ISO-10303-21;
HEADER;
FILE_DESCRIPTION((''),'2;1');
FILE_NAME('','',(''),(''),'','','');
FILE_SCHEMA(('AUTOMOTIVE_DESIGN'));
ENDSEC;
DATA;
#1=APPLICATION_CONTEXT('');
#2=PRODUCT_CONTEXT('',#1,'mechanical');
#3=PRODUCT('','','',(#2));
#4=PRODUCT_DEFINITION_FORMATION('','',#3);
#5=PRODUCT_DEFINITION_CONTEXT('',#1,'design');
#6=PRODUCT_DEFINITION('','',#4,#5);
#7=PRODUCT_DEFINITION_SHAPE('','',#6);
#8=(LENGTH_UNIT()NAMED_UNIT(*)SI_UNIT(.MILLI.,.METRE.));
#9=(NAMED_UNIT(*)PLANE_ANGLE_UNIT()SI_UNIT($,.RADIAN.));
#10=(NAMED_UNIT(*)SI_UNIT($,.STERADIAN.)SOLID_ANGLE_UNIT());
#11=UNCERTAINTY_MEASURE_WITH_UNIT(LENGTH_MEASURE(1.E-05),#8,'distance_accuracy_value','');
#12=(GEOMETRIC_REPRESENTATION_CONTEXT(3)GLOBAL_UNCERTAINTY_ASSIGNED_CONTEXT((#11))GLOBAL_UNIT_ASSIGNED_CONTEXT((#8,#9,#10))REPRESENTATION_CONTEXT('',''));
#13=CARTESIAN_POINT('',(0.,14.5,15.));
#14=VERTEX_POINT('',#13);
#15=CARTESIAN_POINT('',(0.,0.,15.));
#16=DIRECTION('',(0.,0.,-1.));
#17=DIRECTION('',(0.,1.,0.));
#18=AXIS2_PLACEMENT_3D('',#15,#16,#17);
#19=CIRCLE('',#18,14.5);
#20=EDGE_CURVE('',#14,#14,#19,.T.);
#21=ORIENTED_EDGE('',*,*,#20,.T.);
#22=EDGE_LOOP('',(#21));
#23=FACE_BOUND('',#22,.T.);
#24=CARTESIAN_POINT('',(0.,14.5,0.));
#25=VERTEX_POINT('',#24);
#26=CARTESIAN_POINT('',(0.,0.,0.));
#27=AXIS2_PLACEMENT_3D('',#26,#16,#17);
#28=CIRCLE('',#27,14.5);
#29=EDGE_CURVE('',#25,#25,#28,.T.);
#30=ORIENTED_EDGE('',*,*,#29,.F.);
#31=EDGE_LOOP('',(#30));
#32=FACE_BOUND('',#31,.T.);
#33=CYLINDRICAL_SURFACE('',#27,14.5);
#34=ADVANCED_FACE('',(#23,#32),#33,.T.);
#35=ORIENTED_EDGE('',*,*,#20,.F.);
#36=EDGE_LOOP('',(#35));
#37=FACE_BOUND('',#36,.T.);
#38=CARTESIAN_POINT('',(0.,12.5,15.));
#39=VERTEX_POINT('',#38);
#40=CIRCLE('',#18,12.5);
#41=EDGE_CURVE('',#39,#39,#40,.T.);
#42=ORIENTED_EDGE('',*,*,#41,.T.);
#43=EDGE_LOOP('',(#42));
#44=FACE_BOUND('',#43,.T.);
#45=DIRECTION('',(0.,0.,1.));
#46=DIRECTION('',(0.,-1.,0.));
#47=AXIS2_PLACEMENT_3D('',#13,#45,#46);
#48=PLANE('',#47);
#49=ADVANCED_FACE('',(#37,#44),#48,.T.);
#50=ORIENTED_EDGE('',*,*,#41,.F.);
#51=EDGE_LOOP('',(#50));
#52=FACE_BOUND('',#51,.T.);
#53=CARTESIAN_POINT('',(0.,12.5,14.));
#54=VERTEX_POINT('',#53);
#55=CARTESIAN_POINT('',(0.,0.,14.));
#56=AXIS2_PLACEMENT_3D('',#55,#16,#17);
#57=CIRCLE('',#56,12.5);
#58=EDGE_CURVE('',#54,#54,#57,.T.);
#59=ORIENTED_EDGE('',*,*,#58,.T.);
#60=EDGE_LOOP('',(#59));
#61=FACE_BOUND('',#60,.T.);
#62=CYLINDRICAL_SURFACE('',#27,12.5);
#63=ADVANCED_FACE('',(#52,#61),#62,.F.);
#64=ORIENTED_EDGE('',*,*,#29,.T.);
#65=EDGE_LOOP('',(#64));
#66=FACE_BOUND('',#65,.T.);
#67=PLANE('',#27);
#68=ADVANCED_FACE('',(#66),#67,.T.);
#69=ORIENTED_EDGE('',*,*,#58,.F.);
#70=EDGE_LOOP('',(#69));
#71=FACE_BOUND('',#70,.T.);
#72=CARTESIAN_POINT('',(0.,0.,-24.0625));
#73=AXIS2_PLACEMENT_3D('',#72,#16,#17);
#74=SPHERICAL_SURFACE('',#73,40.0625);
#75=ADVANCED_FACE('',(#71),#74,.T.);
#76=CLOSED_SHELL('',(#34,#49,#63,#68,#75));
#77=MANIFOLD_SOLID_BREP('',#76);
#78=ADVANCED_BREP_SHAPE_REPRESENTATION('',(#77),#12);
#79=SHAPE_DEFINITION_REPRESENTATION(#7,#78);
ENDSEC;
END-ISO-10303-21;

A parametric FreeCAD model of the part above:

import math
import FreeCAD as App
import Part
import Sketcher
from FreeCAD import Vector

doc = App.newDocument("Part")
params = doc.addObject("Spreadsheet::Sheet", "Params")
for row, (alias, value) in enumerate([
    ("sketch1_width", "2 mm"),
    ("sketch1_height", "15 mm"),
    ("sketch1_height2", "1 mm"),
    ("sketch1_height3", "16 mm"),
    ("sketch1_width2", "14.5 mm"),
    ("revolution_angle", "360 deg"),
], start=1):
    params.set(f"A{row}", alias)
    params.set(f"B{row}", "=" + value)
    params.setAlias(f"B{row}", alias)

body = doc.addObject("PartDesign::Body", "Body")

# Sketch on YZ plane
sketch1 = body.newObject("Sketcher::SketchObject", "Sketch")
sketch1.AttachmentSupport = (doc.getObject("YZ_Plane"), [""])
sketch1.MapMode = "FlatFace"
sketch1.addGeometry([
    Part.LineSegment(Vector(0, 0, 0), Vector(14.5, 0, 0)),  # 0
    Part.LineSegment(Vector(14.5, 0, 0), Vector(14.5, 15, 0)),  # 1
    Part.LineSegment(Vector(14.5, 15, 0), Vector(12.5, 15, 0)),  # 2
    Part.LineSegment(Vector(12.5, 15, 0), Vector(12.5, 14, 0)),  # 3
    Part.ArcOfCircle(Part.Circle(Vector(0, -24.1, 0), Vector(0, 0, 1), 40.1), math.radians(71.82), math.radians(90)),  # 4
    Part.LineSegment(Vector(0, 16, 0), Vector(0, 0, 0)),  # 5
], False)
sketch1.addConstraint([
    Sketcher.Constraint("Coincident", 0, 2, 1, 1),
    Sketcher.Constraint("Coincident", 1, 2, 2, 1),
    Sketcher.Constraint("Coincident", 2, 2, 3, 1),
    Sketcher.Constraint("Coincident", 3, 2, 4, 1),
    Sketcher.Constraint("Coincident", 4, 2, 5, 1),
    Sketcher.Constraint("Coincident", 5, 2, 0, 1),
    Sketcher.Constraint("Horizontal", 0),
    Sketcher.Constraint("Vertical", 1),
    Sketcher.Constraint("Horizontal", 2),
    Sketcher.Constraint("Vertical", 3),
    Sketcher.Constraint("Vertical", 5),
    Sketcher.Constraint("Coincident", 5, 2, -1, 1),
    Sketcher.Constraint("PointOnObject", 4, 3, -2),
    Sketcher.Constraint("DistanceX", 2, 2, 2, 1, 2.0),
    Sketcher.Constraint("DistanceY", 1, 1, 1, 2, 15.0),
    Sketcher.Constraint("DistanceY", 3, 2, 3, 1, 1.0),
    Sketcher.Constraint("DistanceY", 5, 2, 5, 1, 16.0),
    Sketcher.Constraint("DistanceX", 0, 1, 0, 2, 14.5),
])
sketch1.setExpression("Constraints[13]", "Params.sketch1_width")
sketch1.setExpression("Constraints[14]", "Params.sketch1_height")
sketch1.setExpression("Constraints[15]", "Params.sketch1_height2")
sketch1.setExpression("Constraints[16]", "Params.sketch1_height3")
sketch1.setExpression("Constraints[17]", "Params.sketch1_width2")
revolution = body.newObject("PartDesign::Revolution", "Revolution")
revolution.Profile = sketch1
revolution.ReferenceAxis = (sketch1, ["V_Axis"])
revolution.setExpression("Angle", "Params.revolution_angle")

doc.recompute()
